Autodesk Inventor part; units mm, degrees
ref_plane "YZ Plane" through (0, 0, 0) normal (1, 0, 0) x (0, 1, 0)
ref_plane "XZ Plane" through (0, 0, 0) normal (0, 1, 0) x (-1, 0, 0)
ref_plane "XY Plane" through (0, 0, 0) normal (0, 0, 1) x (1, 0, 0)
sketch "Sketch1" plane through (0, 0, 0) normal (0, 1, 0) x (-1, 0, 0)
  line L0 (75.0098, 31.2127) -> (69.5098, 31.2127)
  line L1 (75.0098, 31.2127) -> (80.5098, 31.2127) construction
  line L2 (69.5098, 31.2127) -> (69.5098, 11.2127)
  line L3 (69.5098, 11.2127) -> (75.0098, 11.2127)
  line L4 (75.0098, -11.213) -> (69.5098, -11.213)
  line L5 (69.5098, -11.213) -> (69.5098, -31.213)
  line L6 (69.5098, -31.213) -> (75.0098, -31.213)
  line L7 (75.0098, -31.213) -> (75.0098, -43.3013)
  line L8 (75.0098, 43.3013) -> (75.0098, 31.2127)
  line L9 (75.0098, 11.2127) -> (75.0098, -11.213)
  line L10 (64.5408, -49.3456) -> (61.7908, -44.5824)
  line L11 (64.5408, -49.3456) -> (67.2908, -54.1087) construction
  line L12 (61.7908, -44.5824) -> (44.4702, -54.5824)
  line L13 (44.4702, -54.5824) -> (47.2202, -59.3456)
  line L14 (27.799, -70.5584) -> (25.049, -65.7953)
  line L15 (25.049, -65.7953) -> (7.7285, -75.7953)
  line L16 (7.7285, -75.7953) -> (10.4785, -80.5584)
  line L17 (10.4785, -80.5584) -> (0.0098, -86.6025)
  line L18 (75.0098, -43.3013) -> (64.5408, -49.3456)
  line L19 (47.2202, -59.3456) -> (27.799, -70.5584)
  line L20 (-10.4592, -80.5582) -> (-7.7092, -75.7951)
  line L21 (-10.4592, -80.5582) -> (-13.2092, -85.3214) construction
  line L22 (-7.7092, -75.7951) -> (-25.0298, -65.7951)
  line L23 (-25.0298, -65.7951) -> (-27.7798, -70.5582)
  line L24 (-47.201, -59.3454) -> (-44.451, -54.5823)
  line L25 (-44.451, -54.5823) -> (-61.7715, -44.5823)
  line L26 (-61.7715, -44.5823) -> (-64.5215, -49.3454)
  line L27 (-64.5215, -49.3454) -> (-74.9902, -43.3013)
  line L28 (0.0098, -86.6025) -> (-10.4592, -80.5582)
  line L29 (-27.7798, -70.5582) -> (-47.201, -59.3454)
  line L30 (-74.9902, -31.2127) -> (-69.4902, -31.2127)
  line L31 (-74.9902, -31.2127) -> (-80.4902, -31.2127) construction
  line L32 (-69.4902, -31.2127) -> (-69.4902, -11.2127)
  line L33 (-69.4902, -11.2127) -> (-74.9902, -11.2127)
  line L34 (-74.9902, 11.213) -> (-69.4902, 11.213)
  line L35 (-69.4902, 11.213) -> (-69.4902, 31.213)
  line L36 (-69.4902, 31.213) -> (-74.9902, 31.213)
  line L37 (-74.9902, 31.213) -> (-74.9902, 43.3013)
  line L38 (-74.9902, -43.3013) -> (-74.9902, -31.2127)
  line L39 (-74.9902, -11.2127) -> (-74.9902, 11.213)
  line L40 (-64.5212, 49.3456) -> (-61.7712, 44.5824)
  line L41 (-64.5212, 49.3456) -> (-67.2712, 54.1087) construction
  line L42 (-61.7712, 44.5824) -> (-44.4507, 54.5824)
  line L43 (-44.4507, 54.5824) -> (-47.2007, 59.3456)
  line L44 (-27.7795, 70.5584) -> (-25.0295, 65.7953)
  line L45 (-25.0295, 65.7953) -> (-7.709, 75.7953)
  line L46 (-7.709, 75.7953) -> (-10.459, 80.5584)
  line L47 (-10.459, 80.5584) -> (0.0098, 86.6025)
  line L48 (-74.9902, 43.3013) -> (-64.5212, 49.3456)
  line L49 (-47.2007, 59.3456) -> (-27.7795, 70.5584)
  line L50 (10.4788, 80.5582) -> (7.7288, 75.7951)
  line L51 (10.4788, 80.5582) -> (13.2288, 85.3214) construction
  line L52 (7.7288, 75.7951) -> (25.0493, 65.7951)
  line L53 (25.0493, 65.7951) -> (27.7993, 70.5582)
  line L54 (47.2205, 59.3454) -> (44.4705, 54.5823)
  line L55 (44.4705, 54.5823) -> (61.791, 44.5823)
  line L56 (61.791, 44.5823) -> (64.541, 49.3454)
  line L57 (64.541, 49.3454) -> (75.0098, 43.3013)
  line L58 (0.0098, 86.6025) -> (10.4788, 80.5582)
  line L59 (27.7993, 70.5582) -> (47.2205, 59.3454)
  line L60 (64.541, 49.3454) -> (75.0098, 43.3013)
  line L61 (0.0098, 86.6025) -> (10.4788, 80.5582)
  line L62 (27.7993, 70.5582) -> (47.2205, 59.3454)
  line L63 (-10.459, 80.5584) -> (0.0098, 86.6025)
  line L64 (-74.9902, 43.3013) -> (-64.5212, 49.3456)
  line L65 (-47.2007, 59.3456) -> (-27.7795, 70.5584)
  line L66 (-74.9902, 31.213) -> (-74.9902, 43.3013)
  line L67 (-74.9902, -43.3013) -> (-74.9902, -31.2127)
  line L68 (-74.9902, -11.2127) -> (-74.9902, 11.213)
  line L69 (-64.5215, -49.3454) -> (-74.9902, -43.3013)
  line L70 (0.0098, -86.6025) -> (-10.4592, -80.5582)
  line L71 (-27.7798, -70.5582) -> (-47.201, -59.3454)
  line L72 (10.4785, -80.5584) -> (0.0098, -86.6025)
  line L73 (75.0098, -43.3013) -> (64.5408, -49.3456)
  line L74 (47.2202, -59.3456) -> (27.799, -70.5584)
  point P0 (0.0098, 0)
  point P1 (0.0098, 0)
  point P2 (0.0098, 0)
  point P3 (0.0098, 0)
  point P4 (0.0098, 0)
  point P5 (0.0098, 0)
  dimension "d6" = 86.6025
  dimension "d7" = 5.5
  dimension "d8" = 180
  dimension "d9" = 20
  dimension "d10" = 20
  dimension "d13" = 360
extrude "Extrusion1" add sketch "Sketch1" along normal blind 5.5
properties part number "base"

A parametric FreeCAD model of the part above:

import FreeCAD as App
import Part
import Sketcher

V = App.Vector
Q = App.Units.Quantity

doc = App.newDocument("Part")
body = doc.addObject("PartDesign::Body", "Body")

sketch1 = body.newObject("Sketcher::SketchObject", "Sketch")
sketch1.AttachmentSupport = (doc.getObject("XZ_Plane"), [""])
sketch1.MapMode = "FlatFace"
sketch1.addGeometry(Part.LineSegment(V(-69.5098, 31.2127, 0), V(-75.0098, 31.2127, 0)), False)
sketch1.addGeometry(Part.LineSegment(V(-75.0098, 31.2127, 0), V(-75.0098, 43.3013, 0)), False)
sketch1.addGeometry(Part.LineSegment(V(-75.0098, 43.3013, 0), V(-64.541, 49.3454, 0)), False)
sketch1.addGeometry(Part.LineSegment(V(-64.541, 49.3454, 0), V(-61.791, 44.5823, 0)), False)
sketch1.addGeometry(Part.LineSegment(V(-61.791, 44.5823, 0), V(-44.4705, 54.5823, 0)), False)
sketch1.addGeometry(Part.LineSegment(V(-44.4705, 54.5823, 0), V(-47.2205, 59.3454, 0)), False)
sketch1.addGeometry(Part.LineSegment(V(-47.2205, 59.3454, 0), V(-27.7993, 70.5582, 0)), False)
sketch1.addGeometry(Part.LineSegment(V(-27.7993, 70.5582, 0), V(-25.0493, 65.7951, 0)), False)
sketch1.addGeometry(Part.LineSegment(V(-25.0493, 65.7951, 0), V(-7.7288, 75.7951, 0)), False)
sketch1.addGeometry(Part.LineSegment(V(-7.7288, 75.7951, 0), V(-10.4788, 80.5582, 0)), False)
sketch1.addGeometry(Part.LineSegment(V(-10.4788, 80.5582, 0), V(-0.0098, 86.6025, 0)), False)
sketch1.addGeometry(Part.LineSegment(V(-0.0098, 86.6025, 0), V(10.459, 80.5584, 0)), False)
sketch1.addGeometry(Part.LineSegment(V(10.459, 80.5584, 0), V(7.709, 75.7953, 0)), False)
sketch1.addGeometry(Part.LineSegment(V(7.709, 75.7953, 0), V(25.0295, 65.7953, 0)), False)
sketch1.addGeometry(Part.LineSegment(V(25.0295, 65.7953, 0), V(27.7795, 70.5584, 0)), False)
sketch1.addGeometry(Part.LineSegment(V(27.7795, 70.5584, 0), V(47.2007, 59.3456, 0)), False)
sketch1.addGeometry(Part.LineSegment(V(47.2007, 59.3456, 0), V(44.4507, 54.5824, 0)), False)
sketch1.addGeometry(Part.LineSegment(V(44.4507, 54.5824, 0), V(61.7712, 44.5824, 0)), False)
sketch1.addGeometry(Part.LineSegment(V(61.7712, 44.5824, 0), V(64.5212, 49.3456, 0)), False)
sketch1.addGeometry(Part.LineSegment(V(64.5212, 49.3456, 0), V(74.9902, 43.3013, 0)), False)
sketch1.addGeometry(Part.LineSegment(V(74.9902, 43.3013, 0), V(74.9902, 31.213, 0)), False)
sketch1.addGeometry(Part.LineSegment(V(74.9902, 31.213, 0), V(69.4902, 31.213, 0)), False)
sketch1.addGeometry(Part.LineSegment(V(69.4902, 31.213, 0), V(69.4902, 11.213, 0)), False)
sketch1.addGeometry(Part.LineSegment(V(69.4902, 11.213, 0), V(74.9902, 11.213, 0)), False)
sketch1.addGeometry(Part.LineSegment(V(74.9902, 11.213, 0), V(74.9902, -11.2127, 0)), False)
sketch1.addGeometry(Part.LineSegment(V(74.9902, -11.2127, 0), V(69.4902, -11.2127, 0)), False)
sketch1.addGeometry(Part.LineSegment(V(69.4902, -11.2127, 0), V(69.4902, -31.2127, 0)), False)
sketch1.addGeometry(Part.LineSegment(V(69.4902, -31.2127, 0), V(74.9902, -31.2127, 0)), False)
sketch1.addGeometry(Part.LineSegment(V(74.9902, -31.2127, 0), V(74.9902, -43.3013, 0)), False)
sketch1.addGeometry(Part.LineSegment(V(74.9902, -43.3013, 0), V(64.5215, -49.3454, 0)), False)
sketch1.addGeometry(Part.LineSegment(V(64.5215, -49.3454, 0), V(61.7715, -44.5823, 0)), False)
sketch1.addGeometry(Part.LineSegment(V(61.7715, -44.5823, 0), V(44.451, -54.5823, 0)), False)
sketch1.addGeometry(Part.LineSegment(V(44.451, -54.5823, 0), V(47.201, -59.3454, 0)), False)
sketch1.addGeometry(Part.LineSegment(V(47.201, -59.3454, 0), V(27.7798, -70.5582, 0)), False)
sketch1.addGeometry(Part.LineSegment(V(27.7798, -70.5582, 0), V(25.0298, -65.7951, 0)), False)
sketch1.addGeometry(Part.LineSegment(V(25.0298, -65.7951, 0), V(7.7092, -75.7951, 0)), False)
sketch1.addGeometry(Part.LineSegment(V(7.7092, -75.7951, 0), V(10.4592, -80.5582, 0)), False)
sketch1.addGeometry(Part.LineSegment(V(10.4592, -80.5582, 0), V(-0.0098, -86.6025, 0)), False)
sketch1.addGeometry(Part.LineSegment(V(-0.0098, -86.6025, 0), V(-10.4785, -80.5584, 0)), False)
sketch1.addGeometry(Part.LineSegment(V(-10.4785, -80.5584, 0), V(-7.7285, -75.7953, 0)), False)
sketch1.addGeometry(Part.LineSegment(V(-7.7285, -75.7953, 0), V(-25.049, -65.7953, 0)), False)
sketch1.addGeometry(Part.LineSegment(V(-25.049, -65.7953, 0), V(-27.799, -70.5584, 0)), False)
sketch1.addGeometry(Part.LineSegment(V(-27.799, -70.5584, 0), V(-47.2202, -59.3456, 0)), False)
sketch1.addGeometry(Part.LineSegment(V(-47.2202, -59.3456, 0), V(-44.4702, -54.5824, 0)), False)
sketch1.addGeometry(Part.LineSegment(V(-44.4702, -54.5824, 0), V(-61.7908, -44.5824, 0)), False)
sketch1.addGeometry(Part.LineSegment(V(-61.7908, -44.5824, 0), V(-64.5408, -49.3456, 0)), False)
sketch1.addGeometry(Part.LineSegment(V(-64.5408, -49.3456, 0), V(-75.0098, -43.3013, 0)), False)
sketch1.addGeometry(Part.LineSegment(V(-75.0098, -43.3013, 0), V(-75.0098, -31.213, 0)), False)
sketch1.addGeometry(Part.LineSegment(V(-75.0098, -31.213, 0), V(-69.5098, -31.213, 0)), False)
sketch1.addGeometry(Part.LineSegment(V(-69.5098, -31.213, 0), V(-69.5098, -11.213, 0)), False)
sketch1.addGeometry(Part.LineSegment(V(-69.5098, -11.213, 0), V(-75.0098, -11.213, 0)), False)
sketch1.addGeometry(Part.LineSegment(V(-75.0098, -11.213, 0), V(-75.0098, 11.2127, 0)), False)
sketch1.addGeometry(Part.LineSegment(V(-75.0098, 11.2127, 0), V(-69.5098, 11.2127, 0)), False)
sketch1.addGeometry(Part.LineSegment(V(-69.5098, 11.2127, 0), V(-69.5098, 31.2127, 0)), False)
sketch1.addConstraint(Sketcher.Constraint("Coincident", 0, 2, 1, 1))
sketch1.addConstraint(Sketcher.Constraint("Coincident", 1, 2, 2, 1))
sketch1.addConstraint(Sketcher.Constraint("Coincident", 2, 2, 3, 1))
sketch1.addConstraint(Sketcher.Constraint("Coincident", 3, 2, 4, 1))
sketch1.addConstraint(Sketcher.Constraint("Coincident", 4, 2, 5, 1))
sketch1.addConstraint(Sketcher.Constraint("Coincident", 5, 2, 6, 1))
sketch1.addConstraint(Sketcher.Constraint("Coincident", 6, 2, 7, 1))
sketch1.addConstraint(Sketcher.Constraint("Coincident", 7, 2, 8, 1))
sketch1.addConstraint(Sketcher.Constraint("Coincident", 8, 2, 9, 1))
sketch1.addConstraint(Sketcher.Constraint("Coincident", 9, 2, 10, 1))
sketch1.addConstraint(Sketcher.Constraint("Coincident", 10, 2, 11, 1))
sketch1.addConstraint(Sketcher.Constraint("Coincident", 11, 2, 12, 1))
sketch1.addConstraint(Sketcher.Constraint("Coincident", 12, 2, 13, 1))
sketch1.addConstraint(Sketcher.Constraint("Coincident", 13, 2, 14, 1))
sketch1.addConstraint(Sketcher.Constraint("Coincident", 14, 2, 15, 1))
sketch1.addConstraint(Sketcher.Constraint("Coincident", 15, 2, 16, 1))
sketch1.addConstraint(Sketcher.Constraint("Coincident", 16, 2, 17, 1))
sketch1.addConstraint(Sketcher.Constraint("Coincident", 17, 2, 18, 1))
sketch1.addConstraint(Sketcher.Constraint("Coincident", 18, 2, 19, 1))
sketch1.addConstraint(Sketcher.Constraint("Coincident", 19, 2, 20, 1))
sketch1.addConstraint(Sketcher.Constraint("Coincident", 20, 2, 21, 1))
sketch1.addConstraint(Sketcher.Constraint("Coincident", 21, 2, 22, 1))
sketch1.addConstraint(Sketcher.Constraint("Coincident", 22, 2, 23, 1))
sketch1.addConstraint(Sketcher.Constraint("Coincident", 23, 2, 24, 1))
sketch1.addConstraint(Sketcher.Constraint("Coincident", 24, 2, 25, 1))
sketch1.addConstraint(Sketcher.Constraint("Coincident", 25, 2, 26, 1))
sketch1.addConstraint(Sketcher.Constraint("Coincident", 26, 2, 27, 1))
sketch1.addConstraint(Sketcher.Constraint("Coincident", 27, 2, 28, 1))
sketch1.addConstraint(Sketcher.Constraint("Coincident", 28, 2, 29, 1))
sketch1.addConstraint(Sketcher.Constraint("Coincident", 29, 2, 30, 1))
sketch1.addConstraint(Sketcher.Constraint("Coincident", 30, 2, 31, 1))
sketch1.addConstraint(Sketcher.Constraint("Coincident", 31, 2, 32, 1))
sketch1.addConstraint(Sketcher.Constraint("Coincident", 32, 2, 33, 1))
sketch1.addConstraint(Sketcher.Constraint("Coincident", 33, 2, 34, 1))
sketch1.addConstraint(Sketcher.Constraint("Coincident", 34, 2, 35, 1))
sketch1.addConstraint(Sketcher.Constraint("Coincident", 35, 2, 36, 1))
sketch1.addConstraint(Sketcher.Constraint("Coincident", 36, 2, 37, 1))
sketch1.addConstraint(Sketcher.Constraint("Coincident", 37, 2, 38, 1))
sketch1.addConstraint(Sketcher.Constraint("Coincident", 38, 2, 39, 1))
sketch1.addConstraint(Sketcher.Constraint("Coincident", 39, 2, 40, 1))
sketch1.addConstraint(Sketcher.Constraint("Coincident", 40, 2, 41, 1))
sketch1.addConstraint(Sketcher.Constraint("Coincident", 41, 2, 42, 1))
sketch1.addConstraint(Sketcher.Constraint("Coincident", 42, 2, 43, 1))
sketch1.addConstraint(Sketcher.Constraint("Coincident", 43, 2, 44, 1))
sketch1.addConstraint(Sketcher.Constraint("Coincident", 44, 2, 45, 1))
sketch1.addConstraint(Sketcher.Constraint("Coincident", 45, 2, 46, 1))
sketch1.addConstraint(Sketcher.Constraint("Coincident", 46, 2, 47, 1))
sketch1.addConstraint(Sketcher.Constraint("Coincident", 47, 2, 48, 1))
sketch1.addConstraint(Sketcher.Constraint("Coincident", 48, 2, 49, 1))
sketch1.addConstraint(Sketcher.Constraint("Coincident", 49, 2, 50, 1))
sketch1.addConstraint(Sketcher.Constraint("Coincident", 50, 2, 51, 1))
sketch1.addConstraint(Sketcher.Constraint("Coincident", 51, 2, 52, 1))
sketch1.addConstraint(Sketcher.Constraint("Coincident", 52, 2, 53, 1))
sketch1.addConstraint(Sketcher.Constraint("Coincident", 53, 2, 0, 1))
sketch1.addConstraint(Sketcher.Constraint("Horizontal", 0))
sketch1.addConstraint(Sketcher.Constraint("Vertical", 1))
sketch1.addConstraint(Sketcher.Constraint("Vertical", 20))
sketch1.addConstraint(Sketcher.Constraint("Horizontal", 21))
sketch1.addConstraint(Sketcher.Constraint("Vertical", 22))
sketch1.addConstraint(Sketcher.Constraint("Horizontal", 23))
sketch1.addConstraint(Sketcher.Constraint("Vertical", 24))
sketch1.addConstraint(Sketcher.Constraint("Horizontal", 25))
sketch1.addConstraint(Sketcher.Constraint("Vertical", 26))
sketch1.addConstraint(Sketcher.Constraint("Horizontal", 27))
sketch1.addConstraint(Sketcher.Constraint("Vertical", 28))
sketch1.addConstraint(Sketcher.Constraint("Vertical", 47))
sketch1.addConstraint(Sketcher.Constraint("Horizontal", 48))
sketch1.addConstraint(Sketcher.Constraint("Vertical", 49))
sketch1.addConstraint(Sketcher.Constraint("Horizontal", 50))
sketch1.addConstraint(Sketcher.Constraint("Vertical", 51))
sketch1.addConstraint(Sketcher.Constraint("Horizontal", 52))
sketch1.addConstraint(Sketcher.Constraint("Vertical", 53))
sketch1.addConstraint(Sketcher.Constraint("Symmetric", 22, 2, 25, 2, -1))
sketch1.addConstraint(Sketcher.Constraint("Symmetric", 20, 2, 27, 2, -1))
sketch1.addConstraint(Sketcher.Constraint("Symmetric", 18, 2, 29, 2, -1))
sketch1.addConstraint(Sketcher.Constraint("Symmetric", 17, 2, 30, 2, -1))
sketch1.addConstraint(Sketcher.Constraint("Symmetric", 16, 2, 31, 2, -1))
sketch1.addConstraint(Sketcher.Constraint("Symmetric", 15, 2, 32, 2, -1))
sketch1.addConstraint(Sketcher.Constraint("Symmetric", 14, 2, 33, 2, -1))
sketch1.addConstraint(Sketcher.Constraint("Symmetric", 13, 2, 34, 2, -1))
sketch1.addConstraint(Sketcher.Constraint("Symmetric", 12, 2, 35, 2, -1))
sketch1.addConstraint(Sketcher.Constraint("Symmetric", 11, 2, 36, 2, -1))
sketch1.addConstraint(Sketcher.Constraint("Symmetric", 10, 2, 37, 2, -1))
sketch1.addConstraint(Sketcher.Constraint("Symmetric", 9, 2, 38, 2, -1))
sketch1.addConstraint(Sketcher.Constraint("Symmetric", 8, 2, 39, 2, -1))
sketch1.addConstraint(Sketcher.Constraint("Symmetric", 7, 2, 40, 2, -1))
sketch1.addConstraint(Sketcher.Constraint("Symmetric", 6, 2, 41, 2, -1))
sketch1.addConstraint(Sketcher.Constraint("Symmetric", 5, 2, 42, 2, -1))
sketch1.addConstraint(Sketcher.Constraint("Symmetric", 4, 2, 43, 2, -1))
sketch1.addConstraint(Sketcher.Constraint("Symmetric", 3, 2, 44, 2, -1))
sketch1.addConstraint(Sketcher.Constraint("Symmetric", 2, 2, 45, 2, -1))
sketch1.addConstraint(Sketcher.Constraint("Symmetric", 1, 2, 46, 2, -1))
sketch1.addConstraint(Sketcher.Constraint("Symmetric", 49, 2, 52, 2, -1))
sketch1.addConstraint(Sketcher.Constraint("Perpendicular", 2, 3))
sketch1.addConstraint(Sketcher.Constraint("Perpendicular", 3, 4))
sketch1.addConstraint(Sketcher.Constraint("Perpendicular", 4, 5))
sketch1.addConstraint(Sketcher.Constraint("Perpendicular", 5, 6))
sketch1.addConstraint(Sketcher.Constraint("Perpendicular", 6, 7))
sketch1.addConstraint(Sketcher.Constraint("Perpendicular", 7, 8))
sketch1.addConstraint(Sketcher.Constraint("Perpendicular", 8, 9))
sketch1.addConstraint(Sketcher.Constraint("Perpendicular", 9, 10))
sketch1.addConstraint(Sketcher.Constraint("Perpendicular", 11, 12))
sketch1.addConstraint(Sketcher.Constraint("Perpendicular", 12, 13))
sketch1.addConstraint(Sketcher.Constraint("Perpendicular", 13, 14))
sketch1.addConstraint(Sketcher.Constraint("Perpendicular", 14, 15))
sketch1.addConstraint(Sketcher.Constraint("Perpendicular", 15, 16))
sketch1.addConstraint(Sketcher.Constraint("Perpendicular", 16, 17))
sketch1.addConstraint(Sketcher.Constraint("Perpendicular", 17, 18))
sketch1.addConstraint(Sketcher.Constraint("Perpendicular", 18, 19))
sketch1.addConstraint(Sketcher.Constraint("Parallel", 10, 29))
sketch1.addConstraint(Sketcher.Constraint("Perpendicular", 29, 30))
sketch1.addConstraint(Sketcher.Constraint("Horizontal", 8, 2, 12, 2))
sketch1.addConstraint(Sketcher.Constraint("Horizontal", 7, 2, 13, 2))
sketch1.addConstraint(Sketcher.Constraint("Horizontal", 5, 2, 15, 2))
sketch1.addConstraint(Sketcher.Constraint("Horizontal", 4, 2, 16, 2))
sketch1.addConstraint(Sketcher.Constraint("Horizontal", 3, 2, 17, 2))
sketch1.addConstraint(Sketcher.Constraint("Horizontal", 2, 2, 18, 2))
sketch1.addConstraint(Sketcher.Constraint("Horizontal", 1, 2, 19, 2))
sketch1.addConstraint(Sketcher.Constraint("Vertical", 20, 2, 23, 2))
sketch1.addConstraint(Sketcher.Constraint("Vertical", 47, 2, 50, 2))
sketch1.addConstraint(Sketcher.Constraint("Equal", 0, 21))
sketch1.addConstraint(Sketcher.Constraint("Equal", 1, 28))
sketch1.addConstraint(Sketcher.Constraint("Equal", 20, 47))
sketch1.addConstraint(Sketcher.Constraint("Equal", 26, 49))
sketch1.addConstraint(Sketcher.Constraint("Equal", 3, 5))
sketch1.addConstraint(Sketcher.Constraint("Equal", 5, 7))
sketch1.addConstraint(Sketcher.Constraint("Equal", 4, 8))
sketch1.addConstraint(Sketcher.Constraint("Equal", 7, 9))
sketch1.addConstraint(Sketcher.Constraint("Equal", 2, 11))
sketch1.addConstraint(Sketcher.Constraint("Equal", 9, 12))
sketch1.addConstraint(Sketcher.Constraint("Equal", 12, 14))
sketch1.addConstraint(Sketcher.Constraint("DistanceY", 22, 2, 22, 1, 20.0))
sketch1.addConstraint(Sketcher.Constraint("Distance", 4, 20.0))
sketch1.addConstraint(Sketcher.Constraint("DistanceX", 0, 2, 0, 1, 5.5))
sketch1.addConstraint(Sketcher.Constraint("Distance", 3, 5.5))
sketch1.addConstraint(Sketcher.Constraint("Angle", 2, Q("29.9997 deg")))
sketch1.addConstraint(Sketcher.Constraint("DistanceY", -1, 1, 10, 2, 86.6025))
sketch1.addConstraint(Sketcher.Constraint("DistanceY", 1, 1, 1, 2, 12.0886))
sketch1.addConstraint(Sketcher.Constraint("DistanceY", 24, 2, 24, 1, 22.4257))
sketch1.addConstraint(Sketcher.Constraint("DistanceX", 2, 2, -1, 1, 64.541))
sketch1.addConstraint(Sketcher.Constraint("DistanceY", -1, 1, 7, 2, 65.795))
pad1 = body.newObject("PartDesign::Pad", "Pad")
pad1.Profile = sketch1
pad1.Length = 5.5
pad1.Reversed = True

doc.recompute()
